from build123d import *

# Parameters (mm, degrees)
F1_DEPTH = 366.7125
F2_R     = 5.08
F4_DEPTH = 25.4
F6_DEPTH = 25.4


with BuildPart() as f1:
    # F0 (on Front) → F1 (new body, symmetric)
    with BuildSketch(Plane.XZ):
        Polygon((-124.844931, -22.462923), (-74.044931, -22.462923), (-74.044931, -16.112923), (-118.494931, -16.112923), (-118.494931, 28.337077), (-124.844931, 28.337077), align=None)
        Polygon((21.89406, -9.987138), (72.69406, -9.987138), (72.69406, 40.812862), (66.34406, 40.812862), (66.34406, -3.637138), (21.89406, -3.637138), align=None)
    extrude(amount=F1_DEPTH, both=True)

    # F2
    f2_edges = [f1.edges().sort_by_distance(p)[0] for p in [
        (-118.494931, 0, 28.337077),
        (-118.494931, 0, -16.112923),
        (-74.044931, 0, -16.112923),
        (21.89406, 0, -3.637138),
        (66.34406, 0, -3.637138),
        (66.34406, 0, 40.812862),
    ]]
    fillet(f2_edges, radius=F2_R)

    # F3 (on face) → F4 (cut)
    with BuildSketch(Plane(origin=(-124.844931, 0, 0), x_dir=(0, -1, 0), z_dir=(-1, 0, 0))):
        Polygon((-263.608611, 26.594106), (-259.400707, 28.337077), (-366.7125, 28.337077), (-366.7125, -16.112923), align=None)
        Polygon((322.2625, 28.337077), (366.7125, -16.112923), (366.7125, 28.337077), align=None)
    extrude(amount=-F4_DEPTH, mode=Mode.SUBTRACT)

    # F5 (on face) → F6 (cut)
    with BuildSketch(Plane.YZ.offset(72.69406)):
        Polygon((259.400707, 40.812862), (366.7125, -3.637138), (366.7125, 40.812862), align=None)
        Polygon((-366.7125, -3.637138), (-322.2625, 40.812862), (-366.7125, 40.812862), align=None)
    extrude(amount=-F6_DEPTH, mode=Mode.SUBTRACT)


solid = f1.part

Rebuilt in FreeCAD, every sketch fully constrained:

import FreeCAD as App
import Part
import Sketcher

V = App.Vector
Q = App.Units.Quantity


def edges_at(feature, points):
    """Names of the edges that pass closest to the given points."""
    edges = feature.Shape.Edges
    near = lambda p: min(range(len(edges)), key=lambda i: edges[i].distToShape(Part.Vertex(*p))[0])
    return sorted({f"Edge{near(p) + 1}" for p in points})


def add_polygon(sketch, points):
    """Adds a closed chain of lines whose ends are joined by coincident constraints."""
    first, n = sketch.GeometryCount, len(points)
    for a, b in zip(points, points[1:] + points[:1]):
        sketch.addGeometry(Part.LineSegment(App.Vector(*a, 0), App.Vector(*b, 0)), False)
    for i in range(n):
        sketch.addConstraint(Sketcher.Constraint("Coincident", first + i, 2, first + (i + 1) % n, 1))

doc = App.newDocument("Part")
params = doc.addObject("Spreadsheet::Sheet", "Params")
for row, (alias, value) in enumerate([
    ("sketch1_width", "2 in"),
    ("sketch1_width2", "1.75 in"),
    ("pad1_length", "28.875 in"),
    ("fillet_radius", "0.2 in"),
    ("sketch2_width", "1.75 in"),
    ("pocket1_length", "1 in"),
    ("sketch3_width", "1.75 in"),
    ("pocket2_length", "1 in"),
], start=1):
    params.set(f"A{row}", alias)
    params.set(f"B{row}", "=" + value)
    params.setAlias(f"B{row}", alias)

body = doc.addObject("PartDesign::Body", "Body")
body.AllowCompound = True

sketch1 = body.newObject("Sketcher::SketchObject", "Sketch")
sketch1.AttachmentSupport = (doc.getObject("XZ_Plane"), [""])
sketch1.MapMode = "FlatFace"
add_polygon(sketch1, [(-125, -22), (-74, -22), (-74, -16), (-118, -16), (-118, 28), (-125, 28)])
add_polygon(sketch1, [(22, -10), (73, -10), (73, 41), (66, 41), (66, -4), (22, -4)])
sketch1.addConstraint(Sketcher.Constraint("Horizontal", 0))
sketch1.addConstraint(Sketcher.Constraint("Vertical", 1))
sketch1.addConstraint(Sketcher.Constraint("Horizontal", 2))
sketch1.addConstraint(Sketcher.Constraint("Vertical", 3))
sketch1.addConstraint(Sketcher.Constraint("Horizontal", 4))
sketch1.addConstraint(Sketcher.Constraint("Vertical", 5))
sketch1.addConstraint(Sketcher.Constraint("Horizontal", 6))
sketch1.addConstraint(Sketcher.Constraint("Vertical", 7))
sketch1.addConstraint(Sketcher.Constraint("Horizontal", 8))
sketch1.addConstraint(Sketcher.Constraint("Vertical", 9))
sketch1.addConstraint(Sketcher.Constraint("Horizontal", 10))
sketch1.addConstraint(Sketcher.Constraint("Vertical", 11))
sketch1.addConstraint(Sketcher.Constraint("Equal", 0, 6))
sketch1.addConstraint(Sketcher.Constraint("Equal", 4, 8))
sketch1.addConstraint(Sketcher.Constraint("Equal", 8, 1))
sketch1.addConstraint(Sketcher.Constraint("Equal", 10, 3))
sketch1.addConstraint(Sketcher.Constraint("Equal", 5, 7))
sketch1.addConstraint(Sketcher.Constraint("Equal", 3, 9))
sketch1.addConstraint(Sketcher.Constraint("DistanceX", 0, 1, 0, 2, Q("2 in")))
sketch1.addConstraint(Sketcher.Constraint("DistanceX", 2, 2, 2, 1, Q("1.75 in")))
sketch1.addConstraint(Sketcher.Constraint("DistanceX", 0, 2, -1, 1, 74.044931))
sketch1.addConstraint(Sketcher.Constraint("DistanceX", -1, 1, 6, 2, 72.69406))
sketch1.addConstraint(Sketcher.Constraint("DistanceY", 9, 2, -1, 1, 3.637138))
sketch1.addConstraint(Sketcher.Constraint("DistanceY", 0, 2, -1, 1, 22.462923))
sketch1.setExpression("Constraints[30]", "Params.sketch1_width")
sketch1.setExpression("Constraints[31]", "Params.sketch1_width2")
pad1 = body.newObject("PartDesign::Pad", "Pad")
pad1.Profile = sketch1
pad1.setExpression("Length", "Params.pad1_length")
pad1.Midplane = True
doc.recompute()

fillet = body.newObject("PartDesign::Fillet", "Fillet")
fillet.Base = (pad1, edges_at(pad1, [
    (-118.495, 0, 28.337),
    (-118.495, 0, -16.113),
    (-74.045, 0, -16.113),
    (21.894, 0, -3.637),
    (66.344, 0, -3.637),
    (66.344, 0, 40.813),
]))
fillet.setExpression("Radius", "Params.fillet_radius")

sketch2 = body.newObject("Sketcher::SketchObject", "Sketch001")
sketch2.AttachmentSupport = (doc.getObject("YZ_Plane"), [""])
sketch2.MapMode = "FlatFace"
sketch2.AttachmentOffset = App.Placement(V(0, 0, -124.844931), App.Rotation())
add_polygon(sketch2, [(263.6, 26.6), (259.4, 28.3), (366.7, 28.3), (366.7, -16.1)])
add_polygon(sketch2, [(-322.3, 28.3), (-366.7, -16.1), (-366.7, 28.3)])
sketch2.addConstraint(Sketcher.Constraint("Horizontal", 1))
sketch2.addConstraint(Sketcher.Constraint("Vertical", 2))
sketch2.addConstraint(Sketcher.Constraint("Vertical", 5))
sketch2.addConstraint(Sketcher.Constraint("Horizontal", 6))
sketch2.addConstraint(Sketcher.Constraint("Symmetric", 2, 2, 4, 2, -2))
sketch2.addConstraint(Sketcher.Constraint("Parallel", 0, 3))
sketch2.addConstraint(Sketcher.Constraint("Horizontal", 1, 2, 5, 2))
sketch2.addConstraint(Sketcher.Constraint("Equal", 6, 2))
sketch2.addConstraint(Sketcher.Constraint("DistanceX", 6, 1, 6, 2, Q("1.75 in")))
sketch2.addConstraint(Sketcher.Constraint("Angle", 0, Q("157.499999 deg")))
sketch2.addConstraint(Sketcher.Constraint("DistanceX", -1, 1, 1, 2, Q("14.4375 in")))
sketch2.addConstraint(Sketcher.Constraint("DistanceX", -1, 1, 3, 2, 263.608611))
sketch2.addConstraint(Sketcher.Constraint("DistanceY", -1, 1, 0, 2, 28.337077))
sketch2.setExpression("Constraints[15]", "Params.sketch2_width")
pocket1 = body.newObject("PartDesign::Pocket", "Pocket")
pocket1.Profile = sketch2
pocket1.setExpression("Length", "Params.pocket1_length")
pocket1.Reversed = True

sketch3 = body.newObject("Sketcher::SketchObject", "Sketch002")
sketch3.AttachmentSupport = (doc.getObject("YZ_Plane"), [""])
sketch3.MapMode = "FlatFace"
sketch3.AttachmentOffset = App.Placement(V(0, 0, 72.69406), App.Rotation())
add_polygon(sketch3, [(259, 41), (367, -4), (367, 41)])
add_polygon(sketch3, [(-367, -4), (-322, 41), (-367, 41)])
sketch3.addConstraint(Sketcher.Constraint("Vertical", 1))
sketch3.addConstraint(Sketcher.Constraint("Horizontal", 2))
sketch3.addConstraint(Sketcher.Constraint("Horizontal", 4))
sketch3.addConstraint(Sketcher.Constraint("Vertical", 5))
sketch3.addConstraint(Sketcher.Constraint("Symmetric", 1, 2, 4, 2, -2))
sketch3.addConstraint(Sketcher.Constraint("Horizontal", 0, 2, 5, 2))
sketch3.addConstraint(Sketcher.Constraint("Equal", 4, 1))
sketch3.addConstraint(Sketcher.Constraint("DistanceX", 4, 2, 4, 1, Q("1.75 in")))
sketch3.addConstraint(Sketcher.Constraint("Angle", 0, Q("-22.5 deg")))
sketch3.addConstraint(Sketcher.Constraint("DistanceX", -1, 1, 0, 2, Q("14.4375 in")))
sketch3.addConstraint(Sketcher.Constraint("DistanceY", 0, 2, -1, 1, 3.637138))
sketch3.setExpression("Constraints[13]", "Params.sketch3_width")
pocket2 = body.newObject("PartDesign::Pocket", "Pocket001")
pocket2.Profile = sketch3
pocket2.setExpression("Length", "Params.pocket2_length")

doc.recompute()
